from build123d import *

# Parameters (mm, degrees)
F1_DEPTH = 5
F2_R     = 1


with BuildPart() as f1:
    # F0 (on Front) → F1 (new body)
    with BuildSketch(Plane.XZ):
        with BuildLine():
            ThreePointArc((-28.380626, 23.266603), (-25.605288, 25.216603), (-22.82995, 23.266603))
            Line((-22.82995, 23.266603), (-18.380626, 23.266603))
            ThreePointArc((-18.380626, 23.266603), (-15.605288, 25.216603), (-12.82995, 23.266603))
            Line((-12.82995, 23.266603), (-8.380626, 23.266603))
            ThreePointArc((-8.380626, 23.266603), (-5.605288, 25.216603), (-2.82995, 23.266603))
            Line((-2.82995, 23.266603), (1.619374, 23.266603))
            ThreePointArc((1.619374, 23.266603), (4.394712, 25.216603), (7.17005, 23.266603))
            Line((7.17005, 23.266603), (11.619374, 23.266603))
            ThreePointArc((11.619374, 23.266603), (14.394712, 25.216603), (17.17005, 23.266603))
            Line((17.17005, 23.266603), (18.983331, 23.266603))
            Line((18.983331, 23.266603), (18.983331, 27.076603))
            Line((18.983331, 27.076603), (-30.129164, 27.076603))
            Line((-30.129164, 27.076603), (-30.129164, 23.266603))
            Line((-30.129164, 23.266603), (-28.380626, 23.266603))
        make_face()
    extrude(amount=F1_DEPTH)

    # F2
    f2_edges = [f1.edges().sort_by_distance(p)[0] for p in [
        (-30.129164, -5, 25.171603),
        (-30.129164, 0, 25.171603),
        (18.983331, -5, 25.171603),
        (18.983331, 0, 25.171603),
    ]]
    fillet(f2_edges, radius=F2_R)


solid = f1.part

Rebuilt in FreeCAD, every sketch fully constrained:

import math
import FreeCAD as App
import Part
import Sketcher
from FreeCAD import Vector
Q = App.Units.Quantity


def edges_at(feature, points):
    """Names of the edges that pass closest to the given points."""
    edges = feature.Shape.Edges
    near = lambda p: min(range(len(edges)), key=lambda i: edges[i].distToShape(Part.Vertex(*p))[0])
    return sorted({f"Edge{near(p) + 1}" for p in points})

doc = App.newDocument("Part")
body = doc.addObject("PartDesign::Body", "Body")

sketch1 = body.newObject("Sketcher::SketchObject", "Sketch")
sketch1.AttachmentSupport = (doc.getObject("XZ_Plane"), [""])
sketch1.MapMode = "FlatFace"
sketch1.addGeometry(Part.ArcOfCircle(Part.Circle(Vector(-25.6, 22.3, 0), Vector(0, 0, 1), 3), math.radians(20), math.radians(160)), False)
sketch1.addGeometry(Part.LineSegment(Vector(-22.8, 23.3, 0), Vector(-18.4, 23.3, 0)), False)
sketch1.addGeometry(Part.ArcOfCircle(Part.Circle(Vector(-15.6, 22.3, 0), Vector(0, 0, 1), 3), math.radians(20), math.radians(160)), False)
sketch1.addGeometry(Part.LineSegment(Vector(-12.8, 23.3, 0), Vector(-8.4, 23.3, 0)), False)
sketch1.addGeometry(Part.ArcOfCircle(Part.Circle(Vector(-5.6, 22.3, 0), Vector(0, 0, 1), 3), math.radians(20), math.radians(160)), False)
sketch1.addGeometry(Part.LineSegment(Vector(-2.8, 23.3, 0), Vector(1.6, 23.3, 0)), False)
sketch1.addGeometry(Part.ArcOfCircle(Part.Circle(Vector(4.4, 22.3, 0), Vector(0, 0, 1), 3), math.radians(20), math.radians(160)), False)
sketch1.addGeometry(Part.LineSegment(Vector(7.2, 23.3, 0), Vector(11.6, 23.3, 0)), False)
sketch1.addGeometry(Part.ArcOfCircle(Part.Circle(Vector(14.4, 22.3, 0), Vector(0, 0, 1), 3), math.radians(20), math.radians(160)), False)
sketch1.addGeometry(Part.LineSegment(Vector(17.2, 23.3, 0), Vector(19, 23.3, 0)), False)
sketch1.addGeometry(Part.LineSegment(Vector(19, 23.3, 0), Vector(19, 27.1, 0)), False)
sketch1.addGeometry(Part.LineSegment(Vector(19, 27.1, 0), Vector(-30.1, 27.1, 0)), False)
sketch1.addGeometry(Part.LineSegment(Vector(-30.1, 27.1, 0), Vector(-30.1, 23.3, 0)), False)
sketch1.addGeometry(Part.LineSegment(Vector(-30.1, 23.3, 0), Vector(-28.4, 23.3, 0)), False)
sketch1.addConstraint(Sketcher.Constraint("Coincident", 0, 1, 1, 1))
sketch1.addConstraint(Sketcher.Constraint("Coincident", 1, 2, 2, 2))
sketch1.addConstraint(Sketcher.Constraint("Coincident", 2, 1, 3, 1))
sketch1.addConstraint(Sketcher.Constraint("Coincident", 3, 2, 4, 2))
sketch1.addConstraint(Sketcher.Constraint("Coincident", 4, 1, 5, 1))
sketch1.addConstraint(Sketcher.Constraint("Coincident", 5, 2, 6, 2))
sketch1.addConstraint(Sketcher.Constraint("Coincident", 6, 1, 7, 1))
sketch1.addConstraint(Sketcher.Constraint("Coincident", 7, 2, 8, 2))
sketch1.addConstraint(Sketcher.Constraint("Coincident", 8, 1, 9, 1))
sketch1.addConstraint(Sketcher.Constraint("Coincident", 9, 2, 10, 1))
sketch1.addConstraint(Sketcher.Constraint("Coincident", 10, 2, 11, 1))
sketch1.addConstraint(Sketcher.Constraint("Coincident", 11, 2, 12, 1))
sketch1.addConstraint(Sketcher.Constraint("Coincident", 12, 2, 13, 1))
sketch1.addConstraint(Sketcher.Constraint("Coincident", 13, 2, 0, 2))
sketch1.addConstraint(Sketcher.Constraint("Horizontal", 1))
sketch1.addConstraint(Sketcher.Constraint("Horizontal", 3))
sketch1.addConstraint(Sketcher.Constraint("Horizontal", 5))
sketch1.addConstraint(Sketcher.Constraint("Horizontal", 7))
sketch1.addConstraint(Sketcher.Constraint("Horizontal", 9))
sketch1.addConstraint(Sketcher.Constraint("Vertical", 10))
sketch1.addConstraint(Sketcher.Constraint("Horizontal", 11))
sketch1.addConstraint(Sketcher.Constraint("Vertical", 12))
sketch1.addConstraint(Sketcher.Constraint("Horizontal", 13))
sketch1.addConstraint(Sketcher.Constraint("Equal", 0, 2))
sketch1.addConstraint(Sketcher.Constraint("Equal", 2, 4))
sketch1.addConstraint(Sketcher.Constraint("Equal", 4, 6))
sketch1.addConstraint(Sketcher.Constraint("Equal", 6, 8))
sketch1.addConstraint(Sketcher.Constraint("Horizontal", 0, 3, 2, 3))
sketch1.addConstraint(Sketcher.Constraint("Horizontal", 2, 3, 4, 3))
sketch1.addConstraint(Sketcher.Constraint("Horizontal", 4, 3, 6, 3))
sketch1.addConstraint(Sketcher.Constraint("Horizontal", 6, 3, 8, 3))
sketch1.addConstraint(Sketcher.Constraint("Horizontal", 1, 2, 2, 1))
sketch1.addConstraint(Sketcher.Constraint("Horizontal", 3, 2, 4, 1))
sketch1.addConstraint(Sketcher.Constraint("Horizontal", 5, 2, 6, 1))
sketch1.addConstraint(Sketcher.Constraint("Horizontal", 7, 2, 8, 1))
sketch1.addConstraint(Sketcher.Constraint("Horizontal", 9, 2, 12, 2))
sketch1.addConstraint(Sketcher.Constraint("Equal", 1, 3))
sketch1.addConstraint(Sketcher.Constraint("Equal", 3, 5))
sketch1.addConstraint(Sketcher.Constraint("Equal", 5, 7))
sketch1.addConstraint(Sketcher.Constraint("Radius", 0, Q("2.95 mm")))
sketch1.addConstraint(Sketcher.Constraint("DistanceX", 0, 3, 2, 3, Q("10 mm")))
sketch1.addConstraint(Sketcher.Constraint("DistanceY", 0, 3, 0, 1, Q("1 mm")))
sketch1.addConstraint(Sketcher.Constraint("DistanceY", 10, 1, 10, 2, Q("3.81 mm")))
sketch1.addConstraint(Sketcher.Constraint("DistanceX", 9, 1, 9, 2, Q("1.813281 mm")))
sketch1.addConstraint(Sketcher.Constraint("DistanceX", 11, 2, 11, 1, Q("49.112495 mm")))
sketch1.addConstraint(Sketcher.Constraint("DistanceX", 0, 3, -1, 1, Q("25.605288 mm")))
sketch1.addConstraint(Sketcher.Constraint("DistanceY", -1, 1, 0, 3, Q("22.266603 mm")))
pad1 = body.newObject("PartDesign::Pad", "Pad")
pad1.Profile = sketch1
pad1.Length = 5
doc.recompute()

fillet = body.newObject("PartDesign::Fillet", "Fillet")
fillet.Base = (pad1, edges_at(pad1, [
    (-30.129, -5, 25.172),
    (-30.129, 0, 25.172),
    (18.983, -5, 25.172),
    (18.983, 0, 25.172),
]))
fillet.Radius = 1

doc.recompute()
